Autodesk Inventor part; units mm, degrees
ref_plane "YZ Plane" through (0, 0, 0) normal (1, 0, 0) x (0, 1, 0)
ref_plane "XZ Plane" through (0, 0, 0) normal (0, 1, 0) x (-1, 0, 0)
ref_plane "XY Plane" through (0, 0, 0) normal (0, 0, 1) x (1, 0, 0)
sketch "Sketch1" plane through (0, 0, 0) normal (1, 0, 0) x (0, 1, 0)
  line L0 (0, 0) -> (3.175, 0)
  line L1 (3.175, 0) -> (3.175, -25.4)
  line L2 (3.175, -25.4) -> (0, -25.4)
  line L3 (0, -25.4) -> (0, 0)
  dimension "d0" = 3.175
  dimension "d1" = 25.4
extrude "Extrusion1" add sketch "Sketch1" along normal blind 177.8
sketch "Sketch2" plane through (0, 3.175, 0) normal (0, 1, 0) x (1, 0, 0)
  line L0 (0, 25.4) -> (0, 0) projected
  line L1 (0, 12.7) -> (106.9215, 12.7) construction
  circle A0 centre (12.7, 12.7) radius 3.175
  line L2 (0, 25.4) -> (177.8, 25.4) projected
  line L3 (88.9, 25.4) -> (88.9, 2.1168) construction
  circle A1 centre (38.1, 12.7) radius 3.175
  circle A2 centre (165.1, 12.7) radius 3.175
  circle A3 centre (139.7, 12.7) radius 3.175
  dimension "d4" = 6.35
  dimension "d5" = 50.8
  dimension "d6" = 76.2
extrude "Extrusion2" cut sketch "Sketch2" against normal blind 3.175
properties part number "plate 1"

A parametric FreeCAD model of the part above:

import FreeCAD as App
import Part
import Sketcher
from FreeCAD import Vector
Q = App.Units.Quantity

doc = App.newDocument("Part")
body = doc.addObject("PartDesign::Body", "Body")

sketch1 = doc.addObject("Sketcher::SketchObject", "Sketch")
body.addObject(sketch1)
sketch1.AttachmentSupport = (doc.YZ_Plane, [""])
sketch1.MapMode = "FlatFace"
sketch1.addGeometry(Part.LineSegment(Vector(3.2, 0, 0), Vector(0, 0, 0)), False)
sketch1.addGeometry(Part.LineSegment(Vector(0, 0, 0), Vector(0, -25.4, 0)), False)
sketch1.addGeometry(Part.LineSegment(Vector(0, -25.4, 0), Vector(3.2, -25.4, 0)), False)
sketch1.addGeometry(Part.LineSegment(Vector(3.2, -25.4, 0), Vector(3.2, 0, 0)), False)
sketch1.addConstraint(Sketcher.Constraint("Coincident", 0, 2, 1, 1))
sketch1.addConstraint(Sketcher.Constraint("Coincident", 1, 2, 2, 1))
sketch1.addConstraint(Sketcher.Constraint("Coincident", 2, 2, 3, 1))
sketch1.addConstraint(Sketcher.Constraint("Coincident", 3, 2, 0, 1))
sketch1.addConstraint(Sketcher.Constraint("Horizontal", 0))
sketch1.addConstraint(Sketcher.Constraint("Vertical", 1))
sketch1.addConstraint(Sketcher.Constraint("Horizontal", 2))
sketch1.addConstraint(Sketcher.Constraint("Vertical", 3))
sketch1.addConstraint(Sketcher.Constraint("Coincident", 0, 2, -1, 1))
sketch1.addConstraint(Sketcher.Constraint("DistanceY", 1, 2, 1, 1, Q("1 in")))
sketch1.addConstraint(Sketcher.Constraint("DistanceX", 0, 2, 0, 1, Q("0.125 in")))
pad1 = doc.addObject("PartDesign::Pad", "Pad")
body.addObject(pad1)
pad1.Profile = sketch1
pad1.Length = Q("7 in")

sketch2 = doc.addObject("Sketcher::SketchObject", "Sketch001")
body.addObject(sketch2)
sketch2.AttachmentSupport = (doc.XZ_Plane, [""])
sketch2.MapMode = "FlatFace"
sketch2.AttachmentOffset = App.Placement(Vector(0, 0, -0.125 * 25.4), App.Rotation())
sketch2.addGeometry(Part.Circle(Vector(12.7, -12.7, 0), Vector(0, 0, 1), 3.2), False)
sketch2.addGeometry(Part.Circle(Vector(38.1, -12.7, 0), Vector(0, 0, 1), 3.2), False)
sketch2.addGeometry(Part.Circle(Vector(165.1, -12.7, 0), Vector(0, 0, 1), 3.2), False)
sketch2.addGeometry(Part.Circle(Vector(139.7, -12.7, 0), Vector(0, 0, 1), 3.2), False)
sketch2.addConstraint(Sketcher.Constraint("Equal", 0, 1))
sketch2.addConstraint(Sketcher.Constraint("Equal", 1, 2))
sketch2.addConstraint(Sketcher.Constraint("Equal", 2, 3))
sketch2.addConstraint(Sketcher.Constraint("Horizontal", 0, 3, 1, 3))
sketch2.addConstraint(Sketcher.Constraint("Horizontal", 1, 3, 2, 3))
sketch2.addConstraint(Sketcher.Constraint("Horizontal", 2, 3, 3, 3))
sketch2.addConstraint(Sketcher.Constraint("Diameter", 0, Q("0.25 in")))
sketch2.addConstraint(Sketcher.Constraint("DistanceX", 0, 3, 1, 3, Q("1 in")))
sketch2.addConstraint(Sketcher.Constraint("DistanceX", 1, 3, 2, 3, Q("5 in")))
sketch2.addConstraint(Sketcher.Constraint("DistanceX", 3, 3, 2, 3, Q("1 in")))
sketch2.addConstraint(Sketcher.Constraint("DistanceX", -1, 1, 0, 3, Q("0.5 in")))
sketch2.addConstraint(Sketcher.Constraint("DistanceY", 0, 3, -1, 1, Q("0.5 in")))
pocket1 = doc.addObject("PartDesign::Pocket", "Pocket")
body.addObject(pocket1)
pocket1.Profile = sketch2
pocket1.Length = Q("0.125 in")
pocket1.Reversed = True

doc.recompute()
